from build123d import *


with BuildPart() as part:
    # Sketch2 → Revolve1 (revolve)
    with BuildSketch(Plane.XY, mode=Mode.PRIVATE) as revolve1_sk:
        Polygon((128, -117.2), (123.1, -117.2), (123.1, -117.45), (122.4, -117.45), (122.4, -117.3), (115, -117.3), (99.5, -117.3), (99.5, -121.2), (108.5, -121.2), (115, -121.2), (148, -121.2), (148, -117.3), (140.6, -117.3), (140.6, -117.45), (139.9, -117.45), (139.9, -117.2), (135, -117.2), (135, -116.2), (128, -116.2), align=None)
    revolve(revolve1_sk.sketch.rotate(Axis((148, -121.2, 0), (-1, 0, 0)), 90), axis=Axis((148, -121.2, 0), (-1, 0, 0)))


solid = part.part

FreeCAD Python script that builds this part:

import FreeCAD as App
import Part
import Sketcher

V = App.Vector
Q = App.Units.Quantity


def add_polygon(sketch, points):
    """Adds a closed chain of lines whose ends are joined by coincident constraints."""
    first, n = sketch.GeometryCount, len(points)
    for a, b in zip(points, points[1:] + points[:1]):
        sketch.addGeometry(Part.LineSegment(App.Vector(*a, 0), App.Vector(*b, 0)), False)
    for i in range(n):
        sketch.addConstraint(Sketcher.Constraint("Coincident", first + i, 2, first + (i + 1) % n, 1))

doc = App.newDocument("Part")
params = doc.addObject("Spreadsheet::Sheet", "Params")
for row, (alias, value) in enumerate([
    ("sketch1_width", "7 mm"),
    ("sketch1_height", "1 mm"),
    ("sketch1_width2", "4.9 mm"),
    ("sketch1_width3", "0.7 mm"),
    ("sketch1_width4", "22.9 mm"),
    ("revolution_angle", "360 deg"),
], start=1):
    params.set(f"A{row}", alias)
    params.set(f"B{row}", "=" + value)
    params.setAlias(f"B{row}", alias)

body = doc.addObject("PartDesign::Body", "Body")

sketch1 = body.newObject("Sketcher::SketchObject", "Sketch")
sketch1.AttachmentSupport = (doc.getObject("XY_Plane"), [""])
sketch1.MapMode = "FlatFace"
add_polygon(sketch1, [(128, -117.2), (123.1, -117.2), (123.1, -117.45), (122.4, -117.45), (122.4, -117.3), (99.5, -117.3), (99.5, -121.2), (148, -121.2), (148, -117.3), (140.6, -117.3), (140.6, -117.45), (139.9, -117.45), (139.9, -117.2), (135, -117.2), (135, -116.2), (128, -116.2)])
sketch1.addGeometry(Part.LineSegment(V(148, -121.2, 0), V(99.5, -121.2, 0)), True)
sketch1.addConstraint([
    Sketcher.Constraint("Horizontal", 0),
    Sketcher.Constraint("Vertical", 1),
    Sketcher.Constraint("Horizontal", 2),
    Sketcher.Constraint("Vertical", 3),
    Sketcher.Constraint("Horizontal", 4),
    Sketcher.Constraint("Vertical", 5),
    Sketcher.Constraint("Horizontal", 6),
    Sketcher.Constraint("Vertical", 7),
    Sketcher.Constraint("Horizontal", 8),
    Sketcher.Constraint("Vertical", 9),
    Sketcher.Constraint("Horizontal", 10),
    Sketcher.Constraint("Vertical", 11),
    Sketcher.Constraint("Horizontal", 12),
    Sketcher.Constraint("Vertical", 13),
    Sketcher.Constraint("Horizontal", 14),
    Sketcher.Constraint("Vertical", 15),
    Sketcher.Constraint("Horizontal", 16),
    Sketcher.Constraint("Coincident", 16, 1, 6, 2),
    Sketcher.Constraint("Horizontal", 4, 2, 7, 2),
    Sketcher.Constraint("Horizontal", 2, 2, 9, 2),
    Sketcher.Constraint("Horizontal", 0, 2, 11, 2),
    Sketcher.Constraint("Vertical", 4, 2, 16, 2),
    Sketcher.Constraint("Equal", 2, 10),
    Sketcher.Constraint("Equal", 0, 12),
    Sketcher.Constraint("DistanceX", 14, 2, 14, 1, Q("7 mm")),
    Sketcher.Constraint("DistanceY", 13, 1, 13, 2, Q("1 mm")),
    Sketcher.Constraint("DistanceX", 0, 2, 0, 1, Q("4.9 mm")),
    Sketcher.Constraint("DistanceX", 2, 2, 2, 1, Q("0.7 mm")),
    Sketcher.Constraint("DistanceX", 4, 2, 4, 1, Q("22.9 mm")),
    Sketcher.Constraint("DistanceX", 6, 1, 6, 2, Q("48.5 mm")),
    Sketcher.Constraint("DistanceY", 5, 2, 5, 1, Q("3.9 mm")),
    Sketcher.Constraint("DistanceX", -1, 1, 6, 2, Q("148 mm")),
    Sketcher.Constraint("DistanceY", 5, 2, 0, 2, Q("4 mm")),
    Sketcher.Constraint("DistanceY", 1, 2, 1, 1, Q("0.25 mm")),
    Sketcher.Constraint("DistanceY", 0, 2, -1, 1, Q("117.2 mm")),
])
sketch1.setExpression("Constraints[40]", "Params.sketch1_width")
sketch1.setExpression("Constraints[41]", "Params.sketch1_height")
sketch1.setExpression("Constraints[42]", "Params.sketch1_width2")
sketch1.setExpression("Constraints[43]", "Params.sketch1_width3")
sketch1.setExpression("Constraints[44]", "Params.sketch1_width4")
revolution = body.newObject("PartDesign::Revolution", "Revolution")
revolution.Profile = sketch1
revolution.ReferenceAxis = (sketch1, ["Axis0"])
revolution.setExpression("Angle", "Params.revolution_angle")

doc.recompute()
